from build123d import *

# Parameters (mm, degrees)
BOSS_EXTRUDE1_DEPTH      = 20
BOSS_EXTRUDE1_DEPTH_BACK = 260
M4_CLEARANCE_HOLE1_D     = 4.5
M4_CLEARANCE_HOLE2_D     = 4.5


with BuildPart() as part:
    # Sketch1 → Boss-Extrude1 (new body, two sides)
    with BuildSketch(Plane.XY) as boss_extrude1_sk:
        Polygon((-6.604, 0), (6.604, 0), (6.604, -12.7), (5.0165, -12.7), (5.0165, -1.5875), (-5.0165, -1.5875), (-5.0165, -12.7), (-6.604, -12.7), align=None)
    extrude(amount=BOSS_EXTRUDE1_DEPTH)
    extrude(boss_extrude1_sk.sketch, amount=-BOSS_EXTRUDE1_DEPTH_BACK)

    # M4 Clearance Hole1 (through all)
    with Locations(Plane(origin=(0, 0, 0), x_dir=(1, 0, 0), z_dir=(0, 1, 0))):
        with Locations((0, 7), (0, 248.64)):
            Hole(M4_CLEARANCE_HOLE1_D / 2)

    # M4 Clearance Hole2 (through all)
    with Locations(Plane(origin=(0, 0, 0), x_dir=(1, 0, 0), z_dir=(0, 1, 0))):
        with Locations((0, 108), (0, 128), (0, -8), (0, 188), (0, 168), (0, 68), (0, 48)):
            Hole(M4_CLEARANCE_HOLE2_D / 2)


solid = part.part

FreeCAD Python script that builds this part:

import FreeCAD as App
import Part
import Sketcher
Q = App.Units.Quantity

doc = App.newDocument("Part")
params = doc.addObject("Spreadsheet::Sheet", "Params")
for row, (alias, value) in enumerate([
    ("sketch1_height", "0.5 in"),
    ("sketch1_width", "0.52 in"),
    ("sketch1_width2", "0.0625 in"),
    ("sketch1_height2", "0.4375 in"),
    ("pad1_length", "20 mm"),
    ("pad1_length2", "260 mm"),
    ("hole_diameter", "4.5 mm"),
    ("hole2_diameter", "4.5 mm"),
], start=1):
    params.set(f"A{row}", alias)
    params.set(f"B{row}", "=" + value)
    params.setAlias(f"B{row}", alias)

body = doc.addObject("PartDesign::Body", "Body")

# Sketch on XY plane
sketch1 = body.newObject("Sketcher::SketchObject", "Sketch")
sketch1.AttachmentSupport = (doc.getObject("XY_Plane"), [""])
sketch1.MapMode = "FlatFace"
sketch1.addGeometry([
    Part.LineSegment(App.Vector(6.6, 0, 0), App.Vector(-6.6, 0, 0)),  # 0
    Part.LineSegment(App.Vector(-6.6, 0, 0), App.Vector(-6.6, -12.7, 0)),  # 1
    Part.LineSegment(App.Vector(-6.6, -12.7, 0), App.Vector(-5, -12.7, 0)),  # 2
    Part.LineSegment(App.Vector(-5, -12.7, 0), App.Vector(-5, -1.6, 0)),  # 3
    Part.LineSegment(App.Vector(-5, -1.6, 0), App.Vector(5, -1.6, 0)),  # 4
    Part.LineSegment(App.Vector(5, -1.6, 0), App.Vector(5, -12.7, 0)),  # 5
    Part.LineSegment(App.Vector(5, -12.7, 0), App.Vector(6.6, -12.7, 0)),  # 6
    Part.LineSegment(App.Vector(6.6, -12.7, 0), App.Vector(6.6, 0, 0)),  # 7
], False)
sketch1.addConstraint([
    Sketcher.Constraint("Coincident", 0, 2, 1, 1),
    Sketcher.Constraint("Coincident", 1, 2, 2, 1),
    Sketcher.Constraint("Coincident", 2, 2, 3, 1),
    Sketcher.Constraint("Coincident", 3, 2, 4, 1),
    Sketcher.Constraint("Coincident", 4, 2, 5, 1),
    Sketcher.Constraint("Coincident", 5, 2, 6, 1),
    Sketcher.Constraint("Coincident", 6, 2, 7, 1),
    Sketcher.Constraint("Coincident", 7, 2, 0, 1),
    Sketcher.Constraint("Horizontal", 0),
    Sketcher.Constraint("Vertical", 1),
    Sketcher.Constraint("Horizontal", 2),
    Sketcher.Constraint("Vertical", 3),
    Sketcher.Constraint("Horizontal", 4),
    Sketcher.Constraint("Vertical", 5),
    Sketcher.Constraint("Horizontal", 6),
    Sketcher.Constraint("Vertical", 7),
    Sketcher.Constraint("Symmetric", 0, 2, 7, 2, -1, 1),
    Sketcher.Constraint("Symmetric", 2, 2, 5, 2, -2),
    Sketcher.Constraint("DistanceY", 1, 2, 1, 1, Q("0.5 in")),
    Sketcher.Constraint("DistanceX", 0, 2, 0, 1, Q("0.52 in")),
    Sketcher.Constraint("DistanceX", 2, 1, 2, 2, Q("0.0625 in")),
    Sketcher.Constraint("DistanceY", 3, 1, 3, 2, Q("0.4375 in")),
])
sketch1.setExpression("Constraints[18]", "Params.sketch1_height")
sketch1.setExpression("Constraints[19]", "Params.sketch1_width")
sketch1.setExpression("Constraints[20]", "Params.sketch1_width2")
sketch1.setExpression("Constraints[21]", "Params.sketch1_height2")
pad1 = body.newObject("PartDesign::Pad", "Pad")
pad1.Profile = sketch1
pad1.Type = "TwoLengths"
pad1.setExpression("Length", "Params.pad1_length")
pad1.setExpression("Length2", "Params.pad1_length2")

# Sketch on XZ plane
sketch2 = body.newObject("Sketcher::SketchObject", "Sketch001")
sketch2.AttachmentSupport = (doc.getObject("XZ_Plane"), [""])
sketch2.MapMode = "FlatFace"
sketch2.addGeometry([
    Part.Circle(App.Vector(0, -7, 0), App.Vector(0, 0, 1), 2.2),
    Part.Circle(App.Vector(0, -248.6, 0), App.Vector(0, 0, 1), 2.2),
], False)
sketch2.addConstraint([
    Sketcher.Constraint("Equal", 0, 1),
    Sketcher.Constraint("PointOnObject", 0, 3, -2),
    Sketcher.Constraint("PointOnObject", 1, 3, -2),
    Sketcher.Constraint("Diameter", 0, Q("4.5 mm")),
    Sketcher.Constraint("DistanceY", 0, 3, -1, 1, Q("7 mm")),
    Sketcher.Constraint("DistanceY", 1, 3, -1, 1, Q("248.64 mm")),
])
doc.recompute()
hole = body.newObject("PartDesign::Hole", "Hole")
hole.Profile = sketch2
hole.ThreadType = "None"
hole.setExpression("Diameter", "Params.hole_diameter")
hole.DepthType = "ThroughAll"
hole.Reversed = True

# Sketch on XZ plane
sketch3 = body.newObject("Sketcher::SketchObject", "Sketch002")
sketch3.AttachmentSupport = (doc.getObject("XZ_Plane"), [""])
sketch3.MapMode = "FlatFace"
sketch3.addGeometry([
    Part.Circle(App.Vector(0, -108, 0), App.Vector(0, 0, 1), 2.2),  # 0
    Part.Circle(App.Vector(0, -128, 0), App.Vector(0, 0, 1), 2.2),  # 1
    Part.Circle(App.Vector(0, 8, 0), App.Vector(0, 0, 1), 2.2),  # 2
    Part.Circle(App.Vector(0, -188, 0), App.Vector(0, 0, 1), 2.2),  # 3
    Part.Circle(App.Vector(0, -168, 0), App.Vector(0, 0, 1), 2.2),  # 4
    Part.Circle(App.Vector(0, -68, 0), App.Vector(0, 0, 1), 2.2),  # 5
    Part.Circle(App.Vector(0, -48, 0), App.Vector(0, 0, 1), 2.2),  # 6
], False)
sketch3.addConstraint([
    Sketcher.Constraint("Equal", 0, 1),
    Sketcher.Constraint("Equal", 1, 2),
    Sketcher.Constraint("Equal", 2, 3),
    Sketcher.Constraint("Equal", 3, 4),
    Sketcher.Constraint("Equal", 4, 5),
    Sketcher.Constraint("Equal", 5, 6),
    Sketcher.Constraint("PointOnObject", 0, 3, -2),
    Sketcher.Constraint("PointOnObject", 1, 3, -2),
    Sketcher.Constraint("PointOnObject", 2, 3, -2),
    Sketcher.Constraint("PointOnObject", 3, 3, -2),
    Sketcher.Constraint("PointOnObject", 4, 3, -2),
    Sketcher.Constraint("PointOnObject", 5, 3, -2),
    Sketcher.Constraint("PointOnObject", 6, 3, -2),
    Sketcher.Constraint("Diameter", 0, Q("4.5 mm")),
    Sketcher.Constraint("DistanceY", 0, 3, -1, 1, Q("108 mm")),
    Sketcher.Constraint("DistanceY", 1, 3, -1, 1, Q("128 mm")),
    Sketcher.Constraint("DistanceY", -1, 1, 2, 3, Q("8 mm")),
    Sketcher.Constraint("DistanceY", 3, 3, -1, 1, Q("188 mm")),
    Sketcher.Constraint("DistanceY", 4, 3, -1, 1, Q("168 mm")),
    Sketcher.Constraint("DistanceY", 5, 3, -1, 1, Q("68 mm")),
    Sketcher.Constraint("DistanceY", 6, 3, -1, 1, Q("48 mm")),
])
doc.recompute()
hole2 = body.newObject("PartDesign::Hole", "Hole001")
hole2.Profile = sketch3
hole2.ThreadType = "None"
hole2.setExpression("Diameter", "Params.hole2_diameter")
hole2.DepthType = "ThroughAll"
hole2.Reversed = True

doc.recompute()
